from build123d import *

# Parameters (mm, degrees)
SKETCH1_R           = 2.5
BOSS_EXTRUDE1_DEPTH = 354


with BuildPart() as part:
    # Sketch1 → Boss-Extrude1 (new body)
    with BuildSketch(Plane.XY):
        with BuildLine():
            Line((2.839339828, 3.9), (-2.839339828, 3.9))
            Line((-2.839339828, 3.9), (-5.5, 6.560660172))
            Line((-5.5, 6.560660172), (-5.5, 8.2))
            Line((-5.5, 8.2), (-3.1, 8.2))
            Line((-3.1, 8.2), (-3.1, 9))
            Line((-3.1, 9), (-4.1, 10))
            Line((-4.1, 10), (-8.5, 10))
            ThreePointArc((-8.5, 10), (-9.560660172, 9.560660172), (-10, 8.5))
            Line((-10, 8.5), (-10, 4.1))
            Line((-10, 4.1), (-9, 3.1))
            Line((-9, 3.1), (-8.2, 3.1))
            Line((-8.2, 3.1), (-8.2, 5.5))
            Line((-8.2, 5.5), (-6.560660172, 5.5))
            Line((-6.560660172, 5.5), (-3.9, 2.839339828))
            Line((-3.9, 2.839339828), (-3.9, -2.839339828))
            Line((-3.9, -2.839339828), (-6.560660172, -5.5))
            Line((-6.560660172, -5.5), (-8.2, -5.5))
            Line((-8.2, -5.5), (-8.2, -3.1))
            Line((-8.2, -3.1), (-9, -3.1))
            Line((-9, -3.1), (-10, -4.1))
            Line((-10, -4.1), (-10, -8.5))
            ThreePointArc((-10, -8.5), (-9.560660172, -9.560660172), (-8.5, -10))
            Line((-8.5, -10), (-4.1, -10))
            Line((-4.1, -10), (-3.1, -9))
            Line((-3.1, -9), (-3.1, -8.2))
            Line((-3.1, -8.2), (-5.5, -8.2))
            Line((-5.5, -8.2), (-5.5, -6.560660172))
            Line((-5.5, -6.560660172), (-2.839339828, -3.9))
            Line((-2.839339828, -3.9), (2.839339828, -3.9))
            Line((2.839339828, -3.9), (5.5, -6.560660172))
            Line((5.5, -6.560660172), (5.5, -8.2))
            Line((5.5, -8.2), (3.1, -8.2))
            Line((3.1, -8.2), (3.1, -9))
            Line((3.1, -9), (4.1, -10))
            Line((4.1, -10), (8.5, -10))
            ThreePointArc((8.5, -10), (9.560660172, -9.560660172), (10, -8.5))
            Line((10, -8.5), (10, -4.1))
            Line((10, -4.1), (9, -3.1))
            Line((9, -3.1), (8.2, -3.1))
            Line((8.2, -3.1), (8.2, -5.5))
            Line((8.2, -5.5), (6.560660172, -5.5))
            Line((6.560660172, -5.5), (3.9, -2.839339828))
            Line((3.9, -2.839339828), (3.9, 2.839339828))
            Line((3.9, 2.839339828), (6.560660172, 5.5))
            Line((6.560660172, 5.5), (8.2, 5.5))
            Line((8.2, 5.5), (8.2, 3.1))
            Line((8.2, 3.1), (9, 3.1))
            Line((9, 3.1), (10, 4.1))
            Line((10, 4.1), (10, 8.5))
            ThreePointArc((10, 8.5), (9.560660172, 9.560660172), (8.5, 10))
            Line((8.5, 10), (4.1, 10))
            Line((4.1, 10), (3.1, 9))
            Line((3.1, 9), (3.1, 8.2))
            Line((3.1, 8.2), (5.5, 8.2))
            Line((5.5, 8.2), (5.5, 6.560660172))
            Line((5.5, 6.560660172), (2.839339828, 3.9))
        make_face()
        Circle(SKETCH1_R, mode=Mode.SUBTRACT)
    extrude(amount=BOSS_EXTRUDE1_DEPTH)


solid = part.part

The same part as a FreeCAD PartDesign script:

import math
import FreeCAD as App
import Part
import Sketcher

doc = App.newDocument("Part")
body = doc.addObject("PartDesign::Body", "Body")

# Sketch on XY plane
sketch1 = body.newObject("Sketcher::SketchObject", "Sketch")
sketch1.AttachmentSupport = (doc.getObject("XY_Plane"), [""])
sketch1.MapMode = "FlatFace"
sketch1.addGeometry([
    Part.LineSegment(App.Vector(2.83934, 3.9, 0), App.Vector(-2.83934, 3.9, 0)),  # 0
    Part.LineSegment(App.Vector(-2.83934, 3.9, 0), App.Vector(-5.5, 6.56066, 0)),  # 1
    Part.LineSegment(App.Vector(-5.5, 6.56066, 0), App.Vector(-5.5, 8.2, 0)),  # 2
    Part.LineSegment(App.Vector(-5.5, 8.2, 0), App.Vector(-3.1, 8.2, 0)),  # 3
    Part.LineSegment(App.Vector(-3.1, 8.2, 0), App.Vector(-3.1, 9, 0)),  # 4
    Part.LineSegment(App.Vector(-3.1, 9, 0), App.Vector(-4.1, 10, 0)),  # 5
    Part.LineSegment(App.Vector(-4.1, 10, 0), App.Vector(-8.5, 10, 0)),  # 6
    Part.ArcOfCircle(Part.Circle(App.Vector(-8.5, 8.5, 0), App.Vector(0, 0, 1), 1.5), math.radians(90), math.radians(180)),  # 7
    Part.LineSegment(App.Vector(-10, 8.5, 0), App.Vector(-10, 4.1, 0)),  # 8
    Part.LineSegment(App.Vector(-10, 4.1, 0), App.Vector(-9, 3.1, 0)),  # 9
    Part.LineSegment(App.Vector(-9, 3.1, 0), App.Vector(-8.2, 3.1, 0)),  # 10
    Part.LineSegment(App.Vector(-8.2, 3.1, 0), App.Vector(-8.2, 5.5, 0)),  # 11
    Part.LineSegment(App.Vector(-8.2, 5.5, 0), App.Vector(-6.56066, 5.5, 0)),  # 12
    Part.LineSegment(App.Vector(-6.56066, 5.5, 0), App.Vector(-3.9, 2.83934, 0)),  # 13
    Part.LineSegment(App.Vector(-3.9, 2.83934, 0), App.Vector(-3.9, -2.83934, 0)),  # 14
    Part.LineSegment(App.Vector(-3.9, -2.83934, 0), App.Vector(-6.56066, -5.5, 0)),  # 15
    Part.LineSegment(App.Vector(-6.56066, -5.5, 0), App.Vector(-8.2, -5.5, 0)),  # 16
    Part.LineSegment(App.Vector(-8.2, -5.5, 0), App.Vector(-8.2, -3.1, 0)),  # 17
    Part.LineSegment(App.Vector(-8.2, -3.1, 0), App.Vector(-9, -3.1, 0)),  # 18
    Part.LineSegment(App.Vector(-9, -3.1, 0), App.Vector(-10, -4.1, 0)),  # 19
    Part.LineSegment(App.Vector(-10, -4.1, 0), App.Vector(-10, -8.5, 0)),  # 20
    Part.ArcOfCircle(Part.Circle(App.Vector(-8.5, -8.5, 0), App.Vector(0, 0, 1), 1.5), math.radians(180), math.radians(270)),  # 21
    Part.LineSegment(App.Vector(-8.5, -10, 0), App.Vector(-4.1, -10, 0)),  # 22
    Part.LineSegment(App.Vector(-4.1, -10, 0), App.Vector(-3.1, -9, 0)),  # 23
    Part.LineSegment(App.Vector(-3.1, -9, 0), App.Vector(-3.1, -8.2, 0)),  # 24
    Part.LineSegment(App.Vector(-3.1, -8.2, 0), App.Vector(-5.5, -8.2, 0)),  # 25
    Part.LineSegment(App.Vector(-5.5, -8.2, 0), App.Vector(-5.5, -6.56066, 0)),  # 26
    Part.LineSegment(App.Vector(-5.5, -6.56066, 0), App.Vector(-2.83934, -3.9, 0)),  # 27
    Part.LineSegment(App.Vector(-2.83934, -3.9, 0), App.Vector(2.83934, -3.9, 0)),  # 28
    Part.LineSegment(App.Vector(2.83934, -3.9, 0), App.Vector(5.5, -6.56066, 0)),  # 29
    Part.LineSegment(App.Vector(5.5, -6.56066, 0), App.Vector(5.5, -8.2, 0)),  # 30
    Part.LineSegment(App.Vector(5.5, -8.2, 0), App.Vector(3.1, -8.2, 0)),  # 31
    Part.LineSegment(App.Vector(3.1, -8.2, 0), App.Vector(3.1, -9, 0)),  # 32
    Part.LineSegment(App.Vector(3.1, -9, 0), App.Vector(4.1, -10, 0)),  # 33
    Part.LineSegment(App.Vector(4.1, -10, 0), App.Vector(8.5, -10, 0)),  # 34
    Part.ArcOfCircle(Part.Circle(App.Vector(8.5, -8.5, 0), App.Vector(0, 0, 1), 1.5), math.radians(-90), math.radians(0)),  # 35
    Part.LineSegment(App.Vector(10, -8.5, 0), App.Vector(10, -4.1, 0)),  # 36
    Part.LineSegment(App.Vector(10, -4.1, 0), App.Vector(9, -3.1, 0)),  # 37
    Part.LineSegment(App.Vector(9, -3.1, 0), App.Vector(8.2, -3.1, 0)),  # 38
    Part.LineSegment(App.Vector(8.2, -3.1, 0), App.Vector(8.2, -5.5, 0)),  # 39
    Part.LineSegment(App.Vector(8.2, -5.5, 0), App.Vector(6.56066, -5.5, 0)),  # 40
    Part.LineSegment(App.Vector(6.56066, -5.5, 0), App.Vector(3.9, -2.83934, 0)),  # 41
    Part.LineSegment(App.Vector(3.9, -2.83934, 0), App.Vector(3.9, 2.83934, 0)),  # 42
    Part.LineSegment(App.Vector(3.9, 2.83934, 0), App.Vector(6.56066, 5.5, 0)),  # 43
    Part.LineSegment(App.Vector(6.56066, 5.5, 0), App.Vector(8.2, 5.5, 0)),  # 44
    Part.LineSegment(App.Vector(8.2, 5.5, 0), App.Vector(8.2, 3.1, 0)),  # 45
    Part.LineSegment(App.Vector(8.2, 3.1, 0), App.Vector(9, 3.1, 0)),  # 46
    Part.LineSegment(App.Vector(9, 3.1, 0), App.Vector(10, 4.1, 0)),  # 47
    Part.LineSegment(App.Vector(10, 4.1, 0), App.Vector(10, 8.5, 0)),  # 48
    Part.ArcOfCircle(Part.Circle(App.Vector(8.5, 8.5, 0), App.Vector(0, 0, 1), 1.5), math.radians(0), math.radians(90)),  # 49
    Part.LineSegment(App.Vector(8.5, 10, 0), App.Vector(4.1, 10, 0)),  # 50
    Part.LineSegment(App.Vector(4.1, 10, 0), App.Vector(3.1, 9, 0)),  # 51
    Part.LineSegment(App.Vector(3.1, 9, 0), App.Vector(3.1, 8.2, 0)),  # 52
    Part.LineSegment(App.Vector(3.1, 8.2, 0), App.Vector(5.5, 8.2, 0)),  # 53
    Part.LineSegment(App.Vector(5.5, 8.2, 0), App.Vector(5.5, 6.56066, 0)),  # 54
    Part.LineSegment(App.Vector(5.5, 6.56066, 0), App.Vector(2.83934, 3.9, 0)),  # 55
    Part.Circle(App.Vector(0, 0, 0), App.Vector(0, 0, 1), 2.5),  # 56
], False)
sketch1.addConstraint([
    Sketcher.Constraint("Coincident", 0, 2, 1, 1),
    Sketcher.Constraint("Coincident", 1, 2, 2, 1),
    Sketcher.Constraint("Coincident", 2, 2, 3, 1),
    Sketcher.Constraint("Coincident", 3, 2, 4, 1),
    Sketcher.Constraint("Coincident", 4, 2, 5, 1),
    Sketcher.Constraint("Coincident", 5, 2, 6, 1),
    Sketcher.Constraint("Tangent", 6, 2, 7, 1),
    Sketcher.Constraint("Tangent", 7, 2, 8, 1),
    Sketcher.Constraint("Coincident", 8, 2, 9, 1),
    Sketcher.Constraint("Coincident", 9, 2, 10, 1),
    Sketcher.Constraint("Coincident", 10, 2, 11, 1),
    Sketcher.Constraint("Coincident", 11, 2, 12, 1),
    Sketcher.Constraint("Coincident", 12, 2, 13, 1),
    Sketcher.Constraint("Coincident", 13, 2, 14, 1),
    Sketcher.Constraint("Coincident", 14, 2, 15, 1),
    Sketcher.Constraint("Coincident", 15, 2, 16, 1),
    Sketcher.Constraint("Coincident", 16, 2, 17, 1),
    Sketcher.Constraint("Coincident", 17, 2, 18, 1),
    Sketcher.Constraint("Coincident", 18, 2, 19, 1),
    Sketcher.Constraint("Coincident", 19, 2, 20, 1),
    Sketcher.Constraint("Tangent", 20, 2, 21, 1),
    Sketcher.Constraint("Tangent", 21, 2, 22, 1),
    Sketcher.Constraint("Coincident", 22, 2, 23, 1),
    Sketcher.Constraint("Coincident", 23, 2, 24, 1),
    Sketcher.Constraint("Coincident", 24, 2, 25, 1),
    Sketcher.Constraint("Coincident", 25, 2, 26, 1),
    Sketcher.Constraint("Coincident", 26, 2, 27, 1),
    Sketcher.Constraint("Coincident", 27, 2, 28, 1),
    Sketcher.Constraint("Coincident", 28, 2, 29, 1),
    Sketcher.Constraint("Coincident", 29, 2, 30, 1),
    Sketcher.Constraint("Coincident", 30, 2, 31, 1),
    Sketcher.Constraint("Coincident", 31, 2, 32, 1),
    Sketcher.Constraint("Coincident", 32, 2, 33, 1),
    Sketcher.Constraint("Coincident", 33, 2, 34, 1),
    Sketcher.Constraint("Tangent", 34, 2, 35, 1),
    Sketcher.Constraint("Tangent", 35, 2, 36, 1),
    Sketcher.Constraint("Coincident", 36, 2, 37, 1),
    Sketcher.Constraint("Coincident", 37, 2, 38, 1),
    Sketcher.Constraint("Coincident", 38, 2, 39, 1),
    Sketcher.Constraint("Coincident", 39, 2, 40, 1),
    Sketcher.Constraint("Coincident", 40, 2, 41, 1),
    Sketcher.Constraint("Coincident", 41, 2, 42, 1),
    Sketcher.Constraint("Coincident", 42, 2, 43, 1),
    Sketcher.Constraint("Coincident", 43, 2, 44, 1),
    Sketcher.Constraint("Coincident", 44, 2, 45, 1),
    Sketcher.Constraint("Coincident", 45, 2, 46, 1),
    Sketcher.Constraint("Coincident", 46, 2, 47, 1),
    Sketcher.Constraint("Coincident", 47, 2, 48, 1),
    Sketcher.Constraint("Tangent", 48, 2, 49, 1),
    Sketcher.Constraint("Tangent", 49, 2, 50, 1),
    Sketcher.Constraint("Coincident", 50, 2, 51, 1),
    Sketcher.Constraint("Coincident", 51, 2, 52, 1),
    Sketcher.Constraint("Coincident", 52, 2, 53, 1),
    Sketcher.Constraint("Coincident", 53, 2, 54, 1),
    Sketcher.Constraint("Coincident", 54, 2, 55, 1),
    Sketcher.Constraint("Coincident", 55, 2, 0, 1),
    Sketcher.Constraint("Horizontal", 0),
    Sketcher.Constraint("Vertical", 2),
    Sketcher.Constraint("Horizontal", 3),
    Sketcher.Constraint("Vertical", 4),
    Sketcher.Constraint("Horizontal", 6),
    Sketcher.Constraint("Vertical", 8),
    Sketcher.Constraint("Horizontal", 10),
    Sketcher.Constraint("Vertical", 11),
    Sketcher.Constraint("Horizontal", 12),
    Sketcher.Constraint("Vertical", 14),
    Sketcher.Constraint("Horizontal", 16),
    Sketcher.Constraint("Vertical", 17),
    Sketcher.Constraint("Horizontal", 18),
    Sketcher.Constraint("Vertical", 20),
    Sketcher.Constraint("Horizontal", 22),
    Sketcher.Constraint("Vertical", 24),
    Sketcher.Constraint("Horizontal", 25),
    Sketcher.Constraint("Vertical", 26),
    Sketcher.Constraint("Horizontal", 28),
    Sketcher.Constraint("Vertical", 30),
    Sketcher.Constraint("Horizontal", 31),
    Sketcher.Constraint("Vertical", 32),
    Sketcher.Constraint("Horizontal", 34),
    Sketcher.Constraint("Vertical", 36),
    Sketcher.Constraint("Horizontal", 38),
    Sketcher.Constraint("Vertical", 39),
    Sketcher.Constraint("Horizontal", 40),
    Sketcher.Constraint("Vertical", 42),
    Sketcher.Constraint("Horizontal", 44),
    Sketcher.Constraint("Vertical", 45),
    Sketcher.Constraint("Horizontal", 46),
    Sketcher.Constraint("Vertical", 48),
    Sketcher.Constraint("Horizontal", 50),
    Sketcher.Constraint("Vertical", 52),
    Sketcher.Constraint("Horizontal", 53),
    Sketcher.Constraint("Vertical", 54),
    Sketcher.Constraint("Coincident", 56, 3, -1, 1),
    Sketcher.Constraint("Equal", 7, 21),
    Sketcher.Constraint("Equal", 21, 35),
    Sketcher.Constraint("Equal", 35, 49),
    Sketcher.Constraint("Symmetric", 7, 3, 35, 3, -1, 1),
    Sketcher.Constraint("Symmetric", 21, 3, 49, 3, -1, 1),
    Sketcher.Constraint("Symmetric", 0, 2, 28, 2, -1, 1),
    Sketcher.Constraint("Symmetric", 1, 2, 29, 2, -1, 1),
    Sketcher.Constraint("Symmetric", 3, 2, 31, 2, -1, 1),
    Sketcher.Constraint("Symmetric", 9, 2, 37, 2, -1, 1),
    Sketcher.Constraint("Symmetric", 11, 2, 39, 2, -1, 1),
    Sketcher.Constraint("Symmetric", 13, 2, 41, 2, -1, 1),
    Sketcher.Constraint("Symmetric", 15, 2, 43, 2, -1, 1),
    Sketcher.Constraint("Symmetric", 17, 2, 45, 2, -1, 1),
    Sketcher.Constraint("Symmetric", 23, 2, 51, 2, -1, 1),
    Sketcher.Constraint("Symmetric", 25, 2, 53, 2, -1, 1),
    Sketcher.Constraint("Symmetric", 21, 3, 35, 3, -2),
    Sketcher.Constraint("Symmetric", 26, 2, 29, 2, -2),
    Sketcher.Constraint("Symmetric", 24, 2, 31, 2, -2),
    Sketcher.Constraint("Symmetric", 18, 2, 37, 2, -2),
    Sketcher.Constraint("Symmetric", 16, 2, 39, 2, -2),
    Sketcher.Constraint("Parallel", 1, 5),
    Sketcher.Constraint("Parallel", 5, 9),
    Sketcher.Constraint("Parallel", 9, 13),
    Sketcher.Constraint("Perpendicular", 13, 15),
    Sketcher.Constraint("Parallel", 15, 19),
    Sketcher.Constraint("Parallel", 19, 23),
    Sketcher.Constraint("Parallel", 23, 27),
    Sketcher.Constraint("Parallel", 29, 33),
    Sketcher.Constraint("Parallel", 33, 37),
    Sketcher.Constraint("Parallel", 37, 41),
    Sketcher.Constraint("Perpendicular", 41, 43),
    Sketcher.Constraint("Parallel", 43, 47),
    Sketcher.Constraint("Parallel", 47, 51),
    Sketcher.Constraint("Parallel", 51, 55),
    Sketcher.Constraint("Horizontal", 23, 2, 32, 2),
    Sketcher.Constraint("Horizontal", 19, 2, 36, 2),
    Sketcher.Constraint("Horizontal", 14, 2, 41, 2),
    Sketcher.Constraint("Horizontal", 8, 2, 47, 2),
    Sketcher.Constraint("Horizontal", 4, 2, 51, 2),
    Sketcher.Constraint("Horizontal", 1, 2, 54, 2),
    Sketcher.Constraint("Equal", 44, 2),
    Sketcher.Constraint("Equal", 46, 4),
    Sketcher.Constraint("Equal", 50, 8),
    Sketcher.Constraint("Equal", 53, 11),
    Sketcher.Constraint("Equal", 28, 14),
    Sketcher.Constraint("Equal", 5, 9),
    Sketcher.Constraint("Equal", 1, 13),
    Sketcher.Constraint("Diameter", 56, 5.0),
    Sketcher.Constraint("Radius", 7, 1.5),
    Sketcher.Constraint("DistanceX", 3, 1, 3, 2, 2.4),
    Sketcher.Constraint("DistanceX", 6, 2, 6, 1, 4.4),
    Sketcher.Constraint("DistanceX", 10, 1, 10, 2, 0.8),
    Sketcher.Constraint("DistanceY", -1, 1, 4, 2, 9.0),
    Sketcher.Constraint("DistanceY", -1, 1, 5, 2, 10.0),
    Sketcher.Constraint("DistanceY", -1, 1, 0, 2, 3.9),
    Sketcher.Constraint("DistanceX", 0, 2, 0, 1, 5.67868),
])
pad1 = body.newObject("PartDesign::Pad", "Pad")
pad1.Profile = sketch1
pad1.Length = 354

doc.recompute()
